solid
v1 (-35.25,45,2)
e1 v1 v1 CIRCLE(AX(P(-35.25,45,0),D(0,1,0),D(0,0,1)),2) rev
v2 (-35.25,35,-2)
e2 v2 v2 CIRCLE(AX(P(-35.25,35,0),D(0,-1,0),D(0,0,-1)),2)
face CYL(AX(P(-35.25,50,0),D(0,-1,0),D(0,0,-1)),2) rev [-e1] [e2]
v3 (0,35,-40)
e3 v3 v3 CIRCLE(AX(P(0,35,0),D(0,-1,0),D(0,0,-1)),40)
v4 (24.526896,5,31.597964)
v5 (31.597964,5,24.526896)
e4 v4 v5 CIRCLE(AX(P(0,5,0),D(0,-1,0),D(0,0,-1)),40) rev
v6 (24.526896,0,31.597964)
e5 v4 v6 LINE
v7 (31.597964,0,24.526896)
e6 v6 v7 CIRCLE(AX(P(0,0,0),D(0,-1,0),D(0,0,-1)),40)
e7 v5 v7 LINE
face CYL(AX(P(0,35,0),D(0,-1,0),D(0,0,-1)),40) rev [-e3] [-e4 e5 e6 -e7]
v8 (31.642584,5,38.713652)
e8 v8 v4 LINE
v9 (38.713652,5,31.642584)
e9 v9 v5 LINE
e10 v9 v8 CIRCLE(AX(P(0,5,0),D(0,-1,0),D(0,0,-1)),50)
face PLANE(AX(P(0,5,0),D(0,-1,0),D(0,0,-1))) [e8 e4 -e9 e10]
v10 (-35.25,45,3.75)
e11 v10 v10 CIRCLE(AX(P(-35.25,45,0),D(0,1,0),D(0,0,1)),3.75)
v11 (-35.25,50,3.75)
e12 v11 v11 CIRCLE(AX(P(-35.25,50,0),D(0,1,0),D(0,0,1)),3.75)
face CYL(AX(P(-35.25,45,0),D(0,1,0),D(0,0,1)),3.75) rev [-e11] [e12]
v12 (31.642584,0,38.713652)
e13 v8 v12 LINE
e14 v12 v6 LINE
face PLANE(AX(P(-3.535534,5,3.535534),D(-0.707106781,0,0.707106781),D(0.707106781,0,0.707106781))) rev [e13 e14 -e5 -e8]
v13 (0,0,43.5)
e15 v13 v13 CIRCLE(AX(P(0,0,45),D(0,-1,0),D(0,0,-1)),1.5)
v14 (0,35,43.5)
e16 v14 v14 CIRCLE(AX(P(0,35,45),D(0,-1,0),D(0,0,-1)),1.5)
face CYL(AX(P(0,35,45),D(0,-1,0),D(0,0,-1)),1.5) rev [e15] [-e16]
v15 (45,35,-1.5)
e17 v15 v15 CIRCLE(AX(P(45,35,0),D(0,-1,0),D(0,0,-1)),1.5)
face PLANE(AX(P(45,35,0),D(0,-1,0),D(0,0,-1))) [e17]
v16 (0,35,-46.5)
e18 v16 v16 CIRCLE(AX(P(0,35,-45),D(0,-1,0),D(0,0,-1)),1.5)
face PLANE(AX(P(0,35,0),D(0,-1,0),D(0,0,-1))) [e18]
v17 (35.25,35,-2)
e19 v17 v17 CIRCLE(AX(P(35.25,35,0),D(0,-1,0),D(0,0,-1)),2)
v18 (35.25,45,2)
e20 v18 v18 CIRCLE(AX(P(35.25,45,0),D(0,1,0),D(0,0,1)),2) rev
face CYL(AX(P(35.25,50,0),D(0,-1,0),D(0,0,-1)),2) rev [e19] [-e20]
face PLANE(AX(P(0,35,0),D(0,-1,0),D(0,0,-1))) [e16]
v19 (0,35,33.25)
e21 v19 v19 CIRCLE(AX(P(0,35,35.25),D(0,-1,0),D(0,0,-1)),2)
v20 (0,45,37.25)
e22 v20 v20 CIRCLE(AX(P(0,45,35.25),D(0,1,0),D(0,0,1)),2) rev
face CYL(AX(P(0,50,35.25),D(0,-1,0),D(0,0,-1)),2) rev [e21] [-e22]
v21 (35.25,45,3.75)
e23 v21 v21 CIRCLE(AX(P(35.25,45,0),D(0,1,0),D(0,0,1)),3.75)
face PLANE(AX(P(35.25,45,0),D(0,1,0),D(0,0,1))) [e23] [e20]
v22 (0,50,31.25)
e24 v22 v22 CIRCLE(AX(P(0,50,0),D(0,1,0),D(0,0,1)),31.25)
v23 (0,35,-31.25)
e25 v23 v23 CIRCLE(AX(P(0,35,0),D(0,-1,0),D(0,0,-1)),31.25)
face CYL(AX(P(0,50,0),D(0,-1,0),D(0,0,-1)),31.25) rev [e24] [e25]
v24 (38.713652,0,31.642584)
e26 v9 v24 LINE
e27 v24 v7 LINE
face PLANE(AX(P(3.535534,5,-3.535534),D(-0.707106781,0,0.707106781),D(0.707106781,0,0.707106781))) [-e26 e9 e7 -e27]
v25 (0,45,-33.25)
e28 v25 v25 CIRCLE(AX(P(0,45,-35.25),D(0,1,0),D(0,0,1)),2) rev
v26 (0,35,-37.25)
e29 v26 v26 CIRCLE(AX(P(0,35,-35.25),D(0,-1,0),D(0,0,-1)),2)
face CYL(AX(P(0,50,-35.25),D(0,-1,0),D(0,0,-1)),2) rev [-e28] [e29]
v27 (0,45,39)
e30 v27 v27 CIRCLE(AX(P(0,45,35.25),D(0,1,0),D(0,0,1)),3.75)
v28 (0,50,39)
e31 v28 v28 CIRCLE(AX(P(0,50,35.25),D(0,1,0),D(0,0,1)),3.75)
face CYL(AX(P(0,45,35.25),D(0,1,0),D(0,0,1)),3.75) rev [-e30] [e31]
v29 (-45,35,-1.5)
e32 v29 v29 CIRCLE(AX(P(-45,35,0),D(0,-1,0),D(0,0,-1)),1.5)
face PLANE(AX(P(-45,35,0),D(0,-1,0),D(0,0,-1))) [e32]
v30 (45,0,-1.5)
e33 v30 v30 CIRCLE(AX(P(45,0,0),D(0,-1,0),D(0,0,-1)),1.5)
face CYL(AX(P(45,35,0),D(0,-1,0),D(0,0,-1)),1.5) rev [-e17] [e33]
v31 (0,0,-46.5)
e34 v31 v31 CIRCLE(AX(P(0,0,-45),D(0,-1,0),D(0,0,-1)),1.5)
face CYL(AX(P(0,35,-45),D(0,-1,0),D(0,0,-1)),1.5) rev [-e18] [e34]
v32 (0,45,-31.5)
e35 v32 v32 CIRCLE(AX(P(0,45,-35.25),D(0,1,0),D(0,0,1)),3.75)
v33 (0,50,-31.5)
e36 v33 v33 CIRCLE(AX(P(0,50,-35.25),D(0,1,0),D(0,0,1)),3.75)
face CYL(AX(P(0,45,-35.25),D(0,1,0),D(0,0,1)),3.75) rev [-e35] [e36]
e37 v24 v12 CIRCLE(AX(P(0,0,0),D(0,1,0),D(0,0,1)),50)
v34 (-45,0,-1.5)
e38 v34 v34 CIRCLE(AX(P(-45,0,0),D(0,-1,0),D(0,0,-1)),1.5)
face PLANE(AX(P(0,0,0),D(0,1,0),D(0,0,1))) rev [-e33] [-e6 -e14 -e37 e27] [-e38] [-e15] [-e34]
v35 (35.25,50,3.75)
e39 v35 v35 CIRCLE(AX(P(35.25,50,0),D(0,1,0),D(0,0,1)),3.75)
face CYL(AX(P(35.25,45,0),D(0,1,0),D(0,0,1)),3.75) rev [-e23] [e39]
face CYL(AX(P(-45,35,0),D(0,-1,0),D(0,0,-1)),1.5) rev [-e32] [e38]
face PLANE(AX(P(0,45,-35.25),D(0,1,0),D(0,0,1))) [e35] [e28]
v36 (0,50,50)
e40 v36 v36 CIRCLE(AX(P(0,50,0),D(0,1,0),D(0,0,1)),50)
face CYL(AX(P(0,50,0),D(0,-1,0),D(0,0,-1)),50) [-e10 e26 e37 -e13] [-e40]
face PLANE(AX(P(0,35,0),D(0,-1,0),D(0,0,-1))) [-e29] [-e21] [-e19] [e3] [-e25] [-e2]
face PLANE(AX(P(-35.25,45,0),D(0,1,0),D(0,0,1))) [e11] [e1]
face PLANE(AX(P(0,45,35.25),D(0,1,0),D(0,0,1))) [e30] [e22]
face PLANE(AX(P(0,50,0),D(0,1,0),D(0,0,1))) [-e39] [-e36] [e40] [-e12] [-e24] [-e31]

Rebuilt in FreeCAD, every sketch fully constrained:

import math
import FreeCAD as App
import Part
import Sketcher

V = App.Vector
Q = App.Units.Quantity

doc = App.newDocument("Part")
body = doc.addObject("PartDesign::Body", "Body")

# Sketch on XZ plane
sketch1 = body.newObject("Sketcher::SketchObject", "Sketch")
sketch1.AttachmentSupport = (doc.getObject("XZ_Plane"), [""])
sketch1.MapMode = "FlatFace"
sketch1.addGeometry([
    Part.Circle(V(0, 0, 0), V(0, 0, 1), 50),
    Part.Circle(V(0, 0, 0), V(0, 0, 1), 31),
], False)
sketch1.addConstraint([
    Sketcher.Constraint("Coincident", 0, 3, -1, 1),
    Sketcher.Constraint("Coincident", 1, 3, -1, 1),
    Sketcher.Constraint("Diameter", 0, 100.0),
    Sketcher.Constraint("Diameter", 1, 62.5),
])
pad1 = body.newObject("PartDesign::Pad", "Pad")
pad1.Profile = sketch1
pad1.Length = 50
pad1.Reversed = True

# Sketch on XZ plane
sketch2 = body.newObject("Sketcher::SketchObject", "Sketch001")
sketch2.AttachmentSupport = (doc.getObject("XZ_Plane"), [""])
sketch2.MapMode = "FlatFace"
sketch2.addGeometry(Part.Circle(V(0, 0, 0), V(0, 0, 1), 40), False)
sketch2.addConstraint([
    Sketcher.Constraint("Coincident", 0, 3, -1, 1),
    Sketcher.Constraint("Diameter", 0, 80.0),
])
pocket1 = body.newObject("PartDesign::Pocket", "Pocket")
pocket1.Profile = sketch2
pocket1.Length = 35

# Sketch on XZ plane
sketch3 = body.newObject("Sketcher::SketchObject", "Sketch002")
sketch3.AttachmentSupport = (doc.getObject("XZ_Plane"), [""])
sketch3.MapMode = "FlatFace"
sketch3.addGeometry([
    Part.Circle(V(0, 45, 0), V(0, 0, 1), 1.5),
    Part.Circle(V(45, 0, 0), V(0, 0, 1), 1.5),
    Part.Circle(V(0, -45, 0), V(0, 0, 1), 1.5),
    Part.Circle(V(-45, 0, 0), V(0, 0, 1), 1.5),
], False)
sketch3.addConstraint([
    Sketcher.Constraint("Equal", 0, 1),
    Sketcher.Constraint("Equal", 1, 2),
    Sketcher.Constraint("Equal", 2, 3),
    Sketcher.Constraint("Symmetric", 0, 3, 2, 3, -1, 1),
    Sketcher.Constraint("Symmetric", 1, 3, 3, 3, -1, 1),
    Sketcher.Constraint("PointOnObject", 0, 3, -2),
    Sketcher.Constraint("PointOnObject", 1, 3, -1),
    Sketcher.Constraint("Diameter", 0, 3.0),
    Sketcher.Constraint("DistanceY", -1, 1, 0, 3, 45.0),
    Sketcher.Constraint("DistanceX", -1, 1, 1, 3, 45.0),
])
pocket2 = body.newObject("PartDesign::Pocket", "Pocket001")
pocket2.Profile = sketch3
pocket2.Length = 35

# Sketch on XZ plane
sketch4 = body.newObject("Sketcher::SketchObject", "Sketch003")
sketch4.AttachmentSupport = (doc.getObject("XZ_Plane"), [""])
sketch4.MapMode = "FlatFace"
sketch4.addGeometry([
    Part.Circle(V(0, 35.2, 0), V(0, 0, 1), 2),
    Part.Circle(V(35.2, 0, 0), V(0, 0, 1), 2),
    Part.Circle(V(0, -35.2, 0), V(0, 0, 1), 2),
    Part.Circle(V(-35.2, 0, 0), V(0, 0, 1), 2),
], False)
sketch4.addConstraint([
    Sketcher.Constraint("Equal", 0, 1),
    Sketcher.Constraint("Equal", 1, 2),
    Sketcher.Constraint("Equal", 2, 3),
    Sketcher.Constraint("Symmetric", 0, 3, 2, 3, -1, 1),
    Sketcher.Constraint("Symmetric", 1, 3, 3, 3, -1, 1),
    Sketcher.Constraint("PointOnObject", 0, 3, -2),
    Sketcher.Constraint("PointOnObject", 1, 3, -1),
    Sketcher.Constraint("Diameter", 0, 4.0),
    Sketcher.Constraint("DistanceY", 2, 3, 0, 3, 70.5),
    Sketcher.Constraint("DistanceX", 3, 3, 1, 3, 70.5),
])
pocket3 = body.newObject("PartDesign::Pocket", "Pocket002")
pocket3.Profile = sketch4
pocket3.Type = "ThroughAll"

# Sketch on XZ plane
sketch5 = body.newObject("Sketcher::SketchObject", "Sketch004")
sketch5.AttachmentSupport = (doc.getObject("XZ_Plane"), [""])
sketch5.MapMode = "FlatFace"
sketch5.AttachmentOffset = App.Placement(V(0, 0, -50), App.Rotation())
sketch5.addGeometry([
    Part.Circle(V(0, -35.2, 0), V(0, 0, 1), 3.8),
    Part.Circle(V(35.2, 0, 0), V(0, 0, 1), 3.8),
    Part.Circle(V(0, 35.2, 0), V(0, 0, 1), 3.8),
    Part.Circle(V(-35.2, 0, 0), V(0, 0, 1), 3.8),
], False)
sketch5.addConstraint([
    Sketcher.Constraint("Equal", 0, 1),
    Sketcher.Constraint("Equal", 1, 2),
    Sketcher.Constraint("Equal", 2, 3),
    Sketcher.Constraint("Symmetric", 0, 3, 2, 3, -1, 1),
    Sketcher.Constraint("Symmetric", 1, 3, 3, 3, -1, 1),
    Sketcher.Constraint("PointOnObject", 0, 3, -2),
    Sketcher.Constraint("PointOnObject", 1, 3, -1),
    Sketcher.Constraint("Diameter", 0, 7.5),
    Sketcher.Constraint("DistanceY", 0, 3, 2, 3, 70.5),
    Sketcher.Constraint("DistanceX", 3, 3, 1, 3, 70.5),
])
pocket4 = body.newObject("PartDesign::Pocket", "Pocket003")
pocket4.Profile = sketch5
pocket4.Length = 5
pocket4.Reversed = True

# Sketch on XZ plane
sketch6 = body.newObject("Sketcher::SketchObject", "Sketch005")
sketch6.AttachmentSupport = (doc.getObject("XZ_Plane"), [""])
sketch6.MapMode = "FlatFace"
sketch6.addGeometry([
    Part.ArcOfCircle(Part.Circle(V(0, 0, 0), V(0, 0, 1), 50), math.radians(45), math.radians(50.74)),  # 0
    Part.LineSegment(V(32, 39, 0), V(25, 32, 0)),  # 1
    Part.ArcOfCircle(Part.Circle(V(0, 0, 0), V(0, 0, 1), 40), math.radians(45), math.radians(52.18)),  # 2
    Part.ArcOfCircle(Part.Circle(V(0, 0, 0), V(0, 0, 1), 40), math.radians(37.82), math.radians(45)),  # 3
    Part.LineSegment(V(32, 25, 0), V(39, 32, 0)),  # 4
    Part.ArcOfCircle(Part.Circle(V(0, 0, 0), V(0, 0, 1), 50), math.radians(39.26), math.radians(45)),  # 5
], False)
sketch6.addConstraint([
    Sketcher.Constraint("Coincident", 0, 2, 1, 1),
    Sketcher.Constraint("Coincident", 1, 2, 2, 2),
    Sketcher.Constraint("Tangent", 2, 1, 3, 2),
    Sketcher.Constraint("Coincident", 3, 1, 4, 1),
    Sketcher.Constraint("Coincident", 4, 2, 5, 1),
    Sketcher.Constraint("Tangent", 5, 2, 0, 1),
    Sketcher.Constraint("Coincident", 0, 3, -1, 1),
    Sketcher.Constraint("Coincident", 2, 3, -1, 1),
    Sketcher.Constraint("Equal", 2, 3),
    Sketcher.Constraint("Equal", 0, 5),
    Sketcher.Constraint("Parallel", 1, 4),
    Sketcher.Constraint("Equal", 1, 4),
    Sketcher.Constraint("Radius", 0, 50.000001),
    Sketcher.Constraint("Radius", 2, 40.0),
    Sketcher.Constraint("Angle", 1, Q("-135 deg")),
    Sketcher.Constraint("DistanceX", -1, 1, 2, 1, 28.284271),
    Sketcher.Constraint("DistanceX", -1, 1, 5, 2, 35.355339),
    Sketcher.Constraint("DistanceY", 2, 3, 0, 2, 38.713652),
])
pocket5 = body.newObject("PartDesign::Pocket", "Pocket004")
pocket5.Profile = sketch6
pocket5.Length = 5

doc.recompute()
